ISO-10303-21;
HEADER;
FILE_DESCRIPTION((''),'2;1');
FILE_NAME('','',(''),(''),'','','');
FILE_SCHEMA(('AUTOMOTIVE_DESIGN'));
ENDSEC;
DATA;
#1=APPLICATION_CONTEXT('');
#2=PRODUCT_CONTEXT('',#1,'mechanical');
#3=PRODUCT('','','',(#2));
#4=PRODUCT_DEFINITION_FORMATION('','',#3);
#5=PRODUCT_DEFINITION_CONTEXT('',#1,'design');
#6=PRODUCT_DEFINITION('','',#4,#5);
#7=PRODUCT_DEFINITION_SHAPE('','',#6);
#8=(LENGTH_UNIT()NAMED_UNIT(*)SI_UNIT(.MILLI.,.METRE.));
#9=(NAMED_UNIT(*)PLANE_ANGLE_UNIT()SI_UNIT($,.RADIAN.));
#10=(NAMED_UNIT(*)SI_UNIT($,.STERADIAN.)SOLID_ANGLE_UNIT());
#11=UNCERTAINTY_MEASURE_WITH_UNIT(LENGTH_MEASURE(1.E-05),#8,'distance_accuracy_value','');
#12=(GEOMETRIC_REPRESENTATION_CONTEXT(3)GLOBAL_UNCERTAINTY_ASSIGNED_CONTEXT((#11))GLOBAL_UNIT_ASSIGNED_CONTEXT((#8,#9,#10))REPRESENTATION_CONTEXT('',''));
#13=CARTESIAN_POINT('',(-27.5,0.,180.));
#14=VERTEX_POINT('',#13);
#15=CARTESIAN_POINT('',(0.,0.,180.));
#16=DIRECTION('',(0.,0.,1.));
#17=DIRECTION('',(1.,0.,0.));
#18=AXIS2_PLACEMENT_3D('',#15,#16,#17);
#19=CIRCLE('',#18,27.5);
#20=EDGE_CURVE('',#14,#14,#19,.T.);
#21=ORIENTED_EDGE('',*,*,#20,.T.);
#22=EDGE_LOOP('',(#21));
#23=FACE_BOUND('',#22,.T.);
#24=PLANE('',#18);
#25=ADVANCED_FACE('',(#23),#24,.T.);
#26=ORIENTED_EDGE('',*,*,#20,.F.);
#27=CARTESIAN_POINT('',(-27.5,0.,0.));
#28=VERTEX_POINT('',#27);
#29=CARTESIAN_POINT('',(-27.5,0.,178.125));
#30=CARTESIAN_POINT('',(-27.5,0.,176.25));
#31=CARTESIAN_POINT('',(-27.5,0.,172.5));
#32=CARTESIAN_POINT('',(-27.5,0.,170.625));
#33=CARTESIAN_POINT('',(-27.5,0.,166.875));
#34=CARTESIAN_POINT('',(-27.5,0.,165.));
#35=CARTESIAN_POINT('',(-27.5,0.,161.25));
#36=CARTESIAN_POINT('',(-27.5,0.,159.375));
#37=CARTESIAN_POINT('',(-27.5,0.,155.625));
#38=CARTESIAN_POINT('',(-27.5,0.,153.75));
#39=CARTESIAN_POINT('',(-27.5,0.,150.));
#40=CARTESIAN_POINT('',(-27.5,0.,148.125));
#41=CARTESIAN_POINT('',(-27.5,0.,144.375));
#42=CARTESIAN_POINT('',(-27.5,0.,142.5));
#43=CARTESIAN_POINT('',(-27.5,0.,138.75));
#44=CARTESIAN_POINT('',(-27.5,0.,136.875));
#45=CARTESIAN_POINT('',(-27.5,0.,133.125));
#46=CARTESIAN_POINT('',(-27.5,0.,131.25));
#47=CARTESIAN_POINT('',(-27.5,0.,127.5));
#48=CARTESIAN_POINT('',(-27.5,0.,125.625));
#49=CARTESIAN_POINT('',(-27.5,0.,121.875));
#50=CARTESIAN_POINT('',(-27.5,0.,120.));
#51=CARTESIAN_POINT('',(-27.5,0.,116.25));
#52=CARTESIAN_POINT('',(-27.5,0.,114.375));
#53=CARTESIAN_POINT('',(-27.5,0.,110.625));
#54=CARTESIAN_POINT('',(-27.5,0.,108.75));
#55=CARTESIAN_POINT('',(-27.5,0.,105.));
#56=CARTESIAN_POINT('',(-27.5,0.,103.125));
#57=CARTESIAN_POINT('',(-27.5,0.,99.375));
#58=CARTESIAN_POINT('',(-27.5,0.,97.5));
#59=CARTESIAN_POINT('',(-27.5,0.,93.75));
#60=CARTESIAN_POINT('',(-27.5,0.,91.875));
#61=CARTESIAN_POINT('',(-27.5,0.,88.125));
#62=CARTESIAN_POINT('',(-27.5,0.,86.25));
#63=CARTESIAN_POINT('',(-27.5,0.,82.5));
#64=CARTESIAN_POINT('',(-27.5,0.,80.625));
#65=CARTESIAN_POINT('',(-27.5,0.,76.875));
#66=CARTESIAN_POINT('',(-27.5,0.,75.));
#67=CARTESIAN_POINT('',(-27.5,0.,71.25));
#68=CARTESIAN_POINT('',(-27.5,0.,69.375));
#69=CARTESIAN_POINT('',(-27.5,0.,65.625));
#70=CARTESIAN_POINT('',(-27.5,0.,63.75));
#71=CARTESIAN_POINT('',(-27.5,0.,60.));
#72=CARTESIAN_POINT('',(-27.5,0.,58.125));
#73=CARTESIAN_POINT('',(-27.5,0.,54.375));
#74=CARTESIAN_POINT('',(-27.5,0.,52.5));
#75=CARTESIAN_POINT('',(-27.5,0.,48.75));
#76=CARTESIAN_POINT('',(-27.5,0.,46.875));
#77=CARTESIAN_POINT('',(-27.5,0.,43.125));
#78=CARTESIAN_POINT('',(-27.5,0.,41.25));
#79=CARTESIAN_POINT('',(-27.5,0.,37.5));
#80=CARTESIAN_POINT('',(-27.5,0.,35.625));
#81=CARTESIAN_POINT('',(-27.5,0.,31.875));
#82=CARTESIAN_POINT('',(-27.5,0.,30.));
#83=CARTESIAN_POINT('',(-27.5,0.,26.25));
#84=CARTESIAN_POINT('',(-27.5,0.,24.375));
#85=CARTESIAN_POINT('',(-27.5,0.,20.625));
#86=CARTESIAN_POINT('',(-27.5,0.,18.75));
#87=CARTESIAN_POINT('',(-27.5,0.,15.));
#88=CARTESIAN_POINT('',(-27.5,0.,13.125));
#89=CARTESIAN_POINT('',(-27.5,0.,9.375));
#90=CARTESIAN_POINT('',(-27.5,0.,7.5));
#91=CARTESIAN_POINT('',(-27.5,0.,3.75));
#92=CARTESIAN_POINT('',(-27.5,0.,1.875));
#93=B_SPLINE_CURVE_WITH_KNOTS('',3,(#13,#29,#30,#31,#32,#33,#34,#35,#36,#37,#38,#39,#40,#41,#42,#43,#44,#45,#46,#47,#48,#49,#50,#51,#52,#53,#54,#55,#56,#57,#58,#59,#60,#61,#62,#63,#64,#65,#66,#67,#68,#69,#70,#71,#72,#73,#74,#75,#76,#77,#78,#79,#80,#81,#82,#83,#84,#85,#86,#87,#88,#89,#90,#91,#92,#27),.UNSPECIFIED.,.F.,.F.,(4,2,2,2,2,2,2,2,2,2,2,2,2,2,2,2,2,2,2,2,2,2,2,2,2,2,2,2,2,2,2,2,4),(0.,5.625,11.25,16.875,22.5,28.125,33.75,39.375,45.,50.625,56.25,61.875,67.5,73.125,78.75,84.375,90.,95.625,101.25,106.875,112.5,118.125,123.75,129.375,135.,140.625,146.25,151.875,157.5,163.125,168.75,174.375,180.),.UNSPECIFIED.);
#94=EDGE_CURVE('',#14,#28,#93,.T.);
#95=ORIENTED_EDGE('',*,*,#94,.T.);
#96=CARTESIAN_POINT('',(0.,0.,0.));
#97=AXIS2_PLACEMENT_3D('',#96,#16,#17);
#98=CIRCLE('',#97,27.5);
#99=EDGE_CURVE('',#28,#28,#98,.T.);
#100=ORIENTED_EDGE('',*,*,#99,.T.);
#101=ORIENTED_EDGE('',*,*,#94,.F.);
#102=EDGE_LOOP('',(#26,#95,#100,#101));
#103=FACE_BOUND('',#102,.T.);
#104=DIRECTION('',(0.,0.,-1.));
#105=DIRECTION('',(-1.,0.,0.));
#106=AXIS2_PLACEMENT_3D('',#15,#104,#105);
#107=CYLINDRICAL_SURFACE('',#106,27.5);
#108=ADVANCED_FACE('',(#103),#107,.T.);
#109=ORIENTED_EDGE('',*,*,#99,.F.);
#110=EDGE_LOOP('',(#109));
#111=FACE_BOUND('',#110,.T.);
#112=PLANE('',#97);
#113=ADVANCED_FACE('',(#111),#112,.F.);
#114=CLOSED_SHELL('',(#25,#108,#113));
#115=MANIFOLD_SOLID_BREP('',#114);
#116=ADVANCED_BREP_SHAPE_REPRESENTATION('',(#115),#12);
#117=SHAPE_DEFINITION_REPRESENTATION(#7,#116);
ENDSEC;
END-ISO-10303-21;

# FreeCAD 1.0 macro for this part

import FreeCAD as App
import Part
import Sketcher
from FreeCAD import Vector
Q = App.Units.Quantity

doc = App.newDocument("Part")
body = doc.addObject("PartDesign::Body", "Body")

# Sketch on XY plane
sketch1 = body.newObject("Sketcher::SketchObject", "Sketch")
sketch1.AttachmentSupport = (doc.getObject("XY_Plane"), [""])
sketch1.MapMode = "FlatFace"
sketch1.addGeometry(Part.Circle(Vector(0, 0, 0), Vector(0, 0, 1), 28), False)
sketch1.addConstraint([
    Sketcher.Constraint("Coincident", 0, 3, -1, 1),
    Sketcher.Constraint("Diameter", 0, Q("55 mm")),
])
pad1 = body.newObject("PartDesign::Pad", "Pad")
pad1.Profile = sketch1
pad1.Length = 180

# Sketch on XY plane
sketch2 = body.newObject("Sketcher::SketchObject", "Sketch001")
sketch2.AttachmentSupport = (doc.getObject("XY_Plane"), [""])
sketch2.MapMode = "FlatFace"
sketch2.addGeometry(Part.Circle(Vector(0, 0, 0), Vector(0, 0, 1), 28), False)
sketch2.addConstraint([
    Sketcher.Constraint("Coincident", 0, 3, -1, 1),
    Sketcher.Constraint("Diameter", 0, Q("55 mm")),
])
pad2 = body.newObject("PartDesign::Pad", "Pad001")
pad2.Profile = sketch2
pad2.Length = 180

# Sketch on XY plane
sketch3 = body.newObject("Sketcher::SketchObject", "Sketch002")
sketch3.AttachmentSupport = (doc.getObject("XY_Plane"), [""])
sketch3.MapMode = "FlatFace"
sketch3.addGeometry(Part.Circle(Vector(0, 0, 0), Vector(0, 0, 1), 28), False)
sketch3.addConstraint([
    Sketcher.Constraint("Coincident", 0, 3, -1, 1),
    Sketcher.Constraint("Diameter", 0, Q("55 mm")),
])
pad3 = body.newObject("PartDesign::Pad", "Pad002")
pad3.Profile = sketch3
pad3.Length = 180

doc.recompute()
